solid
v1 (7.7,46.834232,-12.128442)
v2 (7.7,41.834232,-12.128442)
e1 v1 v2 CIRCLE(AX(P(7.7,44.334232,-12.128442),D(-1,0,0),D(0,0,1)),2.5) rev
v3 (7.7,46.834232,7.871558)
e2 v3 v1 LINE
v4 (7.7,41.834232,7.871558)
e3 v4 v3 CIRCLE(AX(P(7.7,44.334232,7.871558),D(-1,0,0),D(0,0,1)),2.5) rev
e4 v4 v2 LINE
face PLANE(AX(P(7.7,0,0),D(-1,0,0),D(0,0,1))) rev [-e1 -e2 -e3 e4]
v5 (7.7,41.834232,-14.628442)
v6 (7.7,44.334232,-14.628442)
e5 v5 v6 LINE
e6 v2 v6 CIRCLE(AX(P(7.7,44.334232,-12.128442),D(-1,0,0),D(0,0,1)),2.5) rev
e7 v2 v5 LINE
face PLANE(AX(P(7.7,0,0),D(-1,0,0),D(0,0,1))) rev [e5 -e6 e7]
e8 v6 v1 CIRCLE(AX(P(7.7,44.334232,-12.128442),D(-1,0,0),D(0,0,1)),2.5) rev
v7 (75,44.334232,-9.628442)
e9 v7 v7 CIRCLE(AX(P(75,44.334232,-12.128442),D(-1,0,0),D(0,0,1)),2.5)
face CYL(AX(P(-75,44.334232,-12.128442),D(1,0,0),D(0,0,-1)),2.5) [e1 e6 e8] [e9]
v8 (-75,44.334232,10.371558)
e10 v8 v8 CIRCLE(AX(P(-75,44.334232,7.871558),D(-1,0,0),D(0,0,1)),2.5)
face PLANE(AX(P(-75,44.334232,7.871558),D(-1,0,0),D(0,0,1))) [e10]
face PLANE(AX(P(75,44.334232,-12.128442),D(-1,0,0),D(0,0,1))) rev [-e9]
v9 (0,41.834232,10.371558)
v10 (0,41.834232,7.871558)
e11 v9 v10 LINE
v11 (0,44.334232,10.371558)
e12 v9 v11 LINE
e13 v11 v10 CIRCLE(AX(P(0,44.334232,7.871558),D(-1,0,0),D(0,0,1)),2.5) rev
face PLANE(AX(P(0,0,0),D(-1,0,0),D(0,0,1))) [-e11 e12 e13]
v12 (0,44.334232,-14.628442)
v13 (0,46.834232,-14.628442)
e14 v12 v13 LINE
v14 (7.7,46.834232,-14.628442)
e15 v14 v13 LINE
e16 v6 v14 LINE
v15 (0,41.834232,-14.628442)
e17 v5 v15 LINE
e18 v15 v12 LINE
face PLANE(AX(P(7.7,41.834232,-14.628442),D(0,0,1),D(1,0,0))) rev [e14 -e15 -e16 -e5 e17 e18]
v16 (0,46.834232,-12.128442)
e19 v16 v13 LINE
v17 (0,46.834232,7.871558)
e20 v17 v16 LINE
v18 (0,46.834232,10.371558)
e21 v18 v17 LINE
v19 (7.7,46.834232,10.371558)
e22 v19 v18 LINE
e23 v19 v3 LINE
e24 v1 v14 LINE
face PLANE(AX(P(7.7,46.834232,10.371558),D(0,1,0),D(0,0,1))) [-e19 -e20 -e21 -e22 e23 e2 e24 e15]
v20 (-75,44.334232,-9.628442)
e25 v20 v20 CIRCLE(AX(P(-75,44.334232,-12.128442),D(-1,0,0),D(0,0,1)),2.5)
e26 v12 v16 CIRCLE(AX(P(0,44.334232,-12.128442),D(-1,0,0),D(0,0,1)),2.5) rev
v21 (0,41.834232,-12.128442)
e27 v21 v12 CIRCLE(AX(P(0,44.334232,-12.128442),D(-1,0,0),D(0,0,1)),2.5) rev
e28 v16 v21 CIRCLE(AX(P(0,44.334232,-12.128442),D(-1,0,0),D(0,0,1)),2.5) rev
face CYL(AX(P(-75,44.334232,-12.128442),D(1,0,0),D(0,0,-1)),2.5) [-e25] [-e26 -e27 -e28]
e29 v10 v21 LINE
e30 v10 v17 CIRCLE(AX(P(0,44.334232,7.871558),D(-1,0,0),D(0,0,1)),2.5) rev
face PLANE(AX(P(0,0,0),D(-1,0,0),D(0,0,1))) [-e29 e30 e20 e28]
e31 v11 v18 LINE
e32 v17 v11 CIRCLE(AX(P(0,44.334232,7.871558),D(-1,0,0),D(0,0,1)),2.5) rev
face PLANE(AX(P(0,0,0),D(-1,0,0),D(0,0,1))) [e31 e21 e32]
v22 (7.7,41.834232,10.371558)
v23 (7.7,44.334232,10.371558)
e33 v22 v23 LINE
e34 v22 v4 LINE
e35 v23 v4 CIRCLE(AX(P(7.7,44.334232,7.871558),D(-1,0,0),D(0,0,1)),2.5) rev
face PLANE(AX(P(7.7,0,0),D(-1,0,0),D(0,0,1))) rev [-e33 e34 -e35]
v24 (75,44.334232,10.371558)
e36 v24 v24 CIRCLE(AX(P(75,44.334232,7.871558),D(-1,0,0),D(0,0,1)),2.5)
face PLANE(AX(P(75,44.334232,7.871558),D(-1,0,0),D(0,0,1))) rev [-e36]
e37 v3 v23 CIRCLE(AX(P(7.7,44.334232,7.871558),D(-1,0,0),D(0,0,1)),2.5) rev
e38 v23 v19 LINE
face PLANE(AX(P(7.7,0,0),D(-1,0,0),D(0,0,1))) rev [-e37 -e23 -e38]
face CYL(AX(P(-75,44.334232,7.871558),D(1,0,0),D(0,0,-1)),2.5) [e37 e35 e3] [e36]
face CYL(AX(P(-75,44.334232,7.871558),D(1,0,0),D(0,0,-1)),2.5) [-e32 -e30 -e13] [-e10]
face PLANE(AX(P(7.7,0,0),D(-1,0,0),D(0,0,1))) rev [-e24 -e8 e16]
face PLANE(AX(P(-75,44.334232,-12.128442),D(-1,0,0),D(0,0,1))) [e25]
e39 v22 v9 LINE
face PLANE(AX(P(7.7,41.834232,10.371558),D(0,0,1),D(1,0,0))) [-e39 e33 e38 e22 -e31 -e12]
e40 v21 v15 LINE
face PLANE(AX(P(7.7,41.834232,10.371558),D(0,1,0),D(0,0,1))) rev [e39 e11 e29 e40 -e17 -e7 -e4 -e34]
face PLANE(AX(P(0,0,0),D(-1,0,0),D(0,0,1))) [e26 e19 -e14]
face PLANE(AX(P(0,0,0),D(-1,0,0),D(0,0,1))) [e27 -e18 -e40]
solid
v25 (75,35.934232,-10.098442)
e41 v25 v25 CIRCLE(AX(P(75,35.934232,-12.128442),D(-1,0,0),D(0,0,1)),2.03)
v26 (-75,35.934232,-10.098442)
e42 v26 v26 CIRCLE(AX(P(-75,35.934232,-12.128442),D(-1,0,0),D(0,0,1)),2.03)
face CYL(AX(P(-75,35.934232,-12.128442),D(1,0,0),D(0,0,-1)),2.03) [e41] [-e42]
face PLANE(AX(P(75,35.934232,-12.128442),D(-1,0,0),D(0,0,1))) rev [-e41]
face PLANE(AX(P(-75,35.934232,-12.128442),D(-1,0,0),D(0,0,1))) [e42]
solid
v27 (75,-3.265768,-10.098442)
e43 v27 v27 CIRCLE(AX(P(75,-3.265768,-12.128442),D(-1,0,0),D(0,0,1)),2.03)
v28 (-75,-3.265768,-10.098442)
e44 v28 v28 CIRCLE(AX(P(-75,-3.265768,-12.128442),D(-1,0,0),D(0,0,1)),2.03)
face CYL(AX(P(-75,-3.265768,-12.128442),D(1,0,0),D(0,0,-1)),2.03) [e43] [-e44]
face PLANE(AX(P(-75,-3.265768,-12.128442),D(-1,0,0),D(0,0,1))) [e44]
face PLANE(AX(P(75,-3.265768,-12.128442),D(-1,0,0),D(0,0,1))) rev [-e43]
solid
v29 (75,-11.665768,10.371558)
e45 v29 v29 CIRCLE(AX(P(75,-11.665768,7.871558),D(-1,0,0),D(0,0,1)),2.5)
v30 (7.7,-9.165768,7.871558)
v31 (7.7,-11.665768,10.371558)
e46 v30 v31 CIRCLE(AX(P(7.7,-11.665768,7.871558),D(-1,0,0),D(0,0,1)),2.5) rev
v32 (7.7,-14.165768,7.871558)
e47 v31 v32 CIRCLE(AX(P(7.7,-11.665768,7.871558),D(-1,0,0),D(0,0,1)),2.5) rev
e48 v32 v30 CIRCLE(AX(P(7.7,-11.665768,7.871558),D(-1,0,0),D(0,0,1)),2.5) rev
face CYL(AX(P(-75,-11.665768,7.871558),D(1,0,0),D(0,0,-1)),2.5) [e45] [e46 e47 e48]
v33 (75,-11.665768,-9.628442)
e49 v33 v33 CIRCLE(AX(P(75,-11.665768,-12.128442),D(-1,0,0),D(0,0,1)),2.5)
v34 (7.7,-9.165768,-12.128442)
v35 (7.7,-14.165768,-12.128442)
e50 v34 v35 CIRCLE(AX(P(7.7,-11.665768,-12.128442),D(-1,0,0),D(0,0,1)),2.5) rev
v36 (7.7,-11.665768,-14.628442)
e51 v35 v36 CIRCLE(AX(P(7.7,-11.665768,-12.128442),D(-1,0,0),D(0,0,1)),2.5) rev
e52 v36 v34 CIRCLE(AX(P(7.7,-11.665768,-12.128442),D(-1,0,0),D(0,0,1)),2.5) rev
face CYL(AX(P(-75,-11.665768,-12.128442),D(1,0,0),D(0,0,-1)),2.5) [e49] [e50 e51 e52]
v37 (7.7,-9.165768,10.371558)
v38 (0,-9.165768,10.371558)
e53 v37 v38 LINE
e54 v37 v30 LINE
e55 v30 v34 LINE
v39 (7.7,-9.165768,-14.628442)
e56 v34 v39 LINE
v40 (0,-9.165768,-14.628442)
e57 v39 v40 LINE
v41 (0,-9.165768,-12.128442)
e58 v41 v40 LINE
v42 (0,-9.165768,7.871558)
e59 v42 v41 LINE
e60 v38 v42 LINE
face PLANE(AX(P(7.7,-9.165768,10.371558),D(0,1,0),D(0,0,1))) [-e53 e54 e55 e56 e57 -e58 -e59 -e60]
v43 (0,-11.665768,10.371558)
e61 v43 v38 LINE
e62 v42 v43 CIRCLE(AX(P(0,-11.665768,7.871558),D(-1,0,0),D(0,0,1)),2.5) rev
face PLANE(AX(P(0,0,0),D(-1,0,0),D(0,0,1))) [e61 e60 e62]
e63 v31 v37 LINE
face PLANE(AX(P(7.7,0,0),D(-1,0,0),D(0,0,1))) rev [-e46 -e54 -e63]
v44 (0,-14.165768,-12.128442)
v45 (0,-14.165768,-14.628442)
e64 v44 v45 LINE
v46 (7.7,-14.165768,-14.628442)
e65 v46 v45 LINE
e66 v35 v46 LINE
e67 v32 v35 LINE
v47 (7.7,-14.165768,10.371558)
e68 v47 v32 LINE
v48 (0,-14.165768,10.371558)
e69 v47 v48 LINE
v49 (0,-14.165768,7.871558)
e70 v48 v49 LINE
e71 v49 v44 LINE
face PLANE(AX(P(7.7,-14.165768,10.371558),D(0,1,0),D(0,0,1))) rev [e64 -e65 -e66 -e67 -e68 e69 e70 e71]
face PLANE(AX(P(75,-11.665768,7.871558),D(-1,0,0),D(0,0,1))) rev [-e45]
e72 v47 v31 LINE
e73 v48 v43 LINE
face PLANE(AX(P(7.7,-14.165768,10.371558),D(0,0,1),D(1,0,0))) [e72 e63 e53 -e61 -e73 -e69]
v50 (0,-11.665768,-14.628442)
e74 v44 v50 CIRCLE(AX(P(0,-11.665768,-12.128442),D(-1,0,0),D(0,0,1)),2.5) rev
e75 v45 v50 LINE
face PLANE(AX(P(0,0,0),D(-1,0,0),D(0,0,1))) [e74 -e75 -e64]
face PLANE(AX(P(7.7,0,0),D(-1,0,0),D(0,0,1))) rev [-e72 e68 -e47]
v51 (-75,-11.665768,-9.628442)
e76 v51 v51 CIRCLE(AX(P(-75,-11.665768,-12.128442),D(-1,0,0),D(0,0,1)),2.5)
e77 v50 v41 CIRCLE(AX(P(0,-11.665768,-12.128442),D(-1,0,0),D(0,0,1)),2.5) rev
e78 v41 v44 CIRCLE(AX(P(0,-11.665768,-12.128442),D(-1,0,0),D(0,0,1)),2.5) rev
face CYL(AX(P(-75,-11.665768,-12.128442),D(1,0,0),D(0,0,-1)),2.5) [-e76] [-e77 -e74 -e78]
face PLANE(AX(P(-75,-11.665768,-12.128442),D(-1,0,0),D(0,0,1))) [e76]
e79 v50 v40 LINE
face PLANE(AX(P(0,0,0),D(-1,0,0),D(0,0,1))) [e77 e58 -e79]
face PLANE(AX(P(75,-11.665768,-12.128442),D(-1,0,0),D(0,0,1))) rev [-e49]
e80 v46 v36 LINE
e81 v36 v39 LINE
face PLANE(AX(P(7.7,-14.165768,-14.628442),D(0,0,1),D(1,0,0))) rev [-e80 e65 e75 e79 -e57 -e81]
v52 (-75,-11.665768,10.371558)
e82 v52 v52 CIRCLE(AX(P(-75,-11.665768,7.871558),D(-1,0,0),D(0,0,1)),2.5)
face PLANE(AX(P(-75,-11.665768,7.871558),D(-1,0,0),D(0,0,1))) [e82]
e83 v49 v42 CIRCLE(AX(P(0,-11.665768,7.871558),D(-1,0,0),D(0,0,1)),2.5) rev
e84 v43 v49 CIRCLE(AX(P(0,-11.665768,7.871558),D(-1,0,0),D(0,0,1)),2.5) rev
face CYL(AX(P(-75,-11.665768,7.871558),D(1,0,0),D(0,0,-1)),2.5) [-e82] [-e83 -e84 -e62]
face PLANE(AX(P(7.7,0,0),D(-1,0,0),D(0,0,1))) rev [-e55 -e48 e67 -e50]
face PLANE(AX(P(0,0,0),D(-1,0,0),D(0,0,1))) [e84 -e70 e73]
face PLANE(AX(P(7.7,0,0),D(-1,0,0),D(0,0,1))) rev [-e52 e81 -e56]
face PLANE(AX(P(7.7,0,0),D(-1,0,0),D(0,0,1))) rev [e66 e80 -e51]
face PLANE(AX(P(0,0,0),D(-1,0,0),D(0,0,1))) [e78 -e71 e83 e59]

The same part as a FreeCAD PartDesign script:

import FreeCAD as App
import Part
import Sketcher
Q = App.Units.Quantity

doc = App.newDocument("Part")
body = doc.addObject("PartDesign::Body", "Body")

sketch1 = body.newObject("Sketcher::SketchObject", "Sketch")
sketch1.AttachmentSupport = (doc.getObject("YZ_Plane"), [""])
sketch1.MapMode = "FlatFace"
sketch1.addGeometry([
    Part.LineSegment(App.Vector(47, 10, 0), App.Vector(42, 10, 0)),
    Part.LineSegment(App.Vector(42, 10, 0), App.Vector(42, -15, 0)),
    Part.LineSegment(App.Vector(42, -15, 0), App.Vector(47, -15, 0)),
    Part.LineSegment(App.Vector(47, -15, 0), App.Vector(47, 10, 0)),
], False)
sketch1.addConstraint([
    Sketcher.Constraint("Coincident", 0, 2, 1, 1),
    Sketcher.Constraint("Coincident", 1, 2, 2, 1),
    Sketcher.Constraint("Coincident", 2, 2, 3, 1),
    Sketcher.Constraint("Coincident", 3, 2, 0, 1),
    Sketcher.Constraint("Horizontal", 0),
    Sketcher.Constraint("Vertical", 1),
    Sketcher.Constraint("Horizontal", 2),
    Sketcher.Constraint("Vertical", 3),
    Sketcher.Constraint("DistanceX", 0, 2, 0, 1, Q("5 mm")),
    Sketcher.Constraint("DistanceY", 1, 2, 1, 1, Q("25 mm")),
    Sketcher.Constraint("DistanceX", -1, 1, 0, 2, Q("41.834232 mm")),
    Sketcher.Constraint("DistanceY", -1, 1, 0, 2, Q("10.371558 mm")),
])
pad1 = body.newObject("PartDesign::Pad", "Pad")
pad1.Profile = sketch1
pad1.Length = 7.7
body2 = doc.addObject("PartDesign::Body", "Body001")

sketch2 = body2.newObject("Sketcher::SketchObject", "Sketch001")
sketch2.AttachmentSupport = (doc.getObject("YZ_Plane001"), [""])
sketch2.MapMode = "FlatFace"
sketch2.addGeometry([
    Part.LineSegment(App.Vector(-9, 10, 0), App.Vector(-14, 10, 0)),
    Part.LineSegment(App.Vector(-14, 10, 0), App.Vector(-14, -15, 0)),
    Part.LineSegment(App.Vector(-14, -15, 0), App.Vector(-9, -15, 0)),
    Part.LineSegment(App.Vector(-9, -15, 0), App.Vector(-9, 10, 0)),
], False)
sketch2.addConstraint([
    Sketcher.Constraint("Coincident", 0, 2, 1, 1),
    Sketcher.Constraint("Coincident", 1, 2, 2, 1),
    Sketcher.Constraint("Coincident", 2, 2, 3, 1),
    Sketcher.Constraint("Coincident", 3, 2, 0, 1),
    Sketcher.Constraint("Horizontal", 0),
    Sketcher.Constraint("Vertical", 1),
    Sketcher.Constraint("Horizontal", 2),
    Sketcher.Constraint("Vertical", 3),
    Sketcher.Constraint("DistanceX", 0, 2, 0, 1, Q("5 mm")),
    Sketcher.Constraint("DistanceY", 1, 2, 1, 1, Q("25 mm")),
    Sketcher.Constraint("DistanceX", 0, 2, -1, 1, Q("14.165768 mm")),
    Sketcher.Constraint("DistanceY", -1, 1, 0, 2, Q("10.371558 mm")),
])
pad2 = body2.newObject("PartDesign::Pad", "Pad001")
pad2.Profile = sketch2
pad2.Length = 7.7
body.AllowCompound = True
doc.recompute()

boolean = body.newObject("PartDesign::Boolean", "Boolean")
boolean.Type = "Fuse"
boolean.addObjects([body2])

sketch3 = body.newObject("Sketcher::SketchObject", "Sketch002")
sketch3.AttachmentSupport = (doc.getObject("YZ_Plane"), [""])
sketch3.MapMode = "FlatFace"
sketch3.addGeometry([
    Part.Circle(App.Vector(44.3, -12.1, 0), App.Vector(0, 0, 1), 2.5),
    Part.Circle(App.Vector(44.3, 7.9, 0), App.Vector(0, 0, 1), 2.5),
    Part.Circle(App.Vector(-11.7, 7.9, 0), App.Vector(0, 0, 1), 2.5),
    Part.Circle(App.Vector(-11.7, -12.1, 0), App.Vector(0, 0, 1), 2.5),
    Part.Circle(App.Vector(35.9, -12.1, 0), App.Vector(0, 0, 1), 2),
    Part.Circle(App.Vector(-3.3, -12.1, 0), App.Vector(0, 0, 1), 2),
], False)
sketch3.addConstraint([
    Sketcher.Constraint("Equal", 0, 1),
    Sketcher.Constraint("Equal", 1, 2),
    Sketcher.Constraint("Equal", 2, 3),
    Sketcher.Constraint("Equal", 4, 5),
    Sketcher.Constraint("Horizontal", 1, 3, 2, 3),
    Sketcher.Constraint("Horizontal", 0, 3, 3, 3),
    Sketcher.Constraint("Horizontal", 3, 3, 4, 3),
    Sketcher.Constraint("Horizontal", 4, 3, 5, 3),
    Sketcher.Constraint("Vertical", 0, 3, 1, 3),
    Sketcher.Constraint("Vertical", 2, 3, 3, 3),
    Sketcher.Constraint("Diameter", 0, Q("5 mm")),
    Sketcher.Constraint("Diameter", 4, Q("4.06 mm")),
    Sketcher.Constraint("DistanceY", 0, 3, 1, 3, Q("20 mm")),
    Sketcher.Constraint("DistanceX", 2, 3, 1, 3, Q("56 mm")),
    Sketcher.Constraint("DistanceX", 4, 3, 0, 3, Q("8.4 mm")),
    Sketcher.Constraint("DistanceX", 3, 3, 5, 3, Q("8.4 mm")),
    Sketcher.Constraint("DistanceX", -1, 1, 0, 3, Q("44.334232 mm")),
    Sketcher.Constraint("DistanceY", 0, 3, -1, 1, Q("12.128442 mm")),
])
pad3 = body.newObject("PartDesign::Pad", "Pad002")
pad3.Profile = sketch3
pad3.Length = 150
pad3.Midplane = True

doc.recompute()
